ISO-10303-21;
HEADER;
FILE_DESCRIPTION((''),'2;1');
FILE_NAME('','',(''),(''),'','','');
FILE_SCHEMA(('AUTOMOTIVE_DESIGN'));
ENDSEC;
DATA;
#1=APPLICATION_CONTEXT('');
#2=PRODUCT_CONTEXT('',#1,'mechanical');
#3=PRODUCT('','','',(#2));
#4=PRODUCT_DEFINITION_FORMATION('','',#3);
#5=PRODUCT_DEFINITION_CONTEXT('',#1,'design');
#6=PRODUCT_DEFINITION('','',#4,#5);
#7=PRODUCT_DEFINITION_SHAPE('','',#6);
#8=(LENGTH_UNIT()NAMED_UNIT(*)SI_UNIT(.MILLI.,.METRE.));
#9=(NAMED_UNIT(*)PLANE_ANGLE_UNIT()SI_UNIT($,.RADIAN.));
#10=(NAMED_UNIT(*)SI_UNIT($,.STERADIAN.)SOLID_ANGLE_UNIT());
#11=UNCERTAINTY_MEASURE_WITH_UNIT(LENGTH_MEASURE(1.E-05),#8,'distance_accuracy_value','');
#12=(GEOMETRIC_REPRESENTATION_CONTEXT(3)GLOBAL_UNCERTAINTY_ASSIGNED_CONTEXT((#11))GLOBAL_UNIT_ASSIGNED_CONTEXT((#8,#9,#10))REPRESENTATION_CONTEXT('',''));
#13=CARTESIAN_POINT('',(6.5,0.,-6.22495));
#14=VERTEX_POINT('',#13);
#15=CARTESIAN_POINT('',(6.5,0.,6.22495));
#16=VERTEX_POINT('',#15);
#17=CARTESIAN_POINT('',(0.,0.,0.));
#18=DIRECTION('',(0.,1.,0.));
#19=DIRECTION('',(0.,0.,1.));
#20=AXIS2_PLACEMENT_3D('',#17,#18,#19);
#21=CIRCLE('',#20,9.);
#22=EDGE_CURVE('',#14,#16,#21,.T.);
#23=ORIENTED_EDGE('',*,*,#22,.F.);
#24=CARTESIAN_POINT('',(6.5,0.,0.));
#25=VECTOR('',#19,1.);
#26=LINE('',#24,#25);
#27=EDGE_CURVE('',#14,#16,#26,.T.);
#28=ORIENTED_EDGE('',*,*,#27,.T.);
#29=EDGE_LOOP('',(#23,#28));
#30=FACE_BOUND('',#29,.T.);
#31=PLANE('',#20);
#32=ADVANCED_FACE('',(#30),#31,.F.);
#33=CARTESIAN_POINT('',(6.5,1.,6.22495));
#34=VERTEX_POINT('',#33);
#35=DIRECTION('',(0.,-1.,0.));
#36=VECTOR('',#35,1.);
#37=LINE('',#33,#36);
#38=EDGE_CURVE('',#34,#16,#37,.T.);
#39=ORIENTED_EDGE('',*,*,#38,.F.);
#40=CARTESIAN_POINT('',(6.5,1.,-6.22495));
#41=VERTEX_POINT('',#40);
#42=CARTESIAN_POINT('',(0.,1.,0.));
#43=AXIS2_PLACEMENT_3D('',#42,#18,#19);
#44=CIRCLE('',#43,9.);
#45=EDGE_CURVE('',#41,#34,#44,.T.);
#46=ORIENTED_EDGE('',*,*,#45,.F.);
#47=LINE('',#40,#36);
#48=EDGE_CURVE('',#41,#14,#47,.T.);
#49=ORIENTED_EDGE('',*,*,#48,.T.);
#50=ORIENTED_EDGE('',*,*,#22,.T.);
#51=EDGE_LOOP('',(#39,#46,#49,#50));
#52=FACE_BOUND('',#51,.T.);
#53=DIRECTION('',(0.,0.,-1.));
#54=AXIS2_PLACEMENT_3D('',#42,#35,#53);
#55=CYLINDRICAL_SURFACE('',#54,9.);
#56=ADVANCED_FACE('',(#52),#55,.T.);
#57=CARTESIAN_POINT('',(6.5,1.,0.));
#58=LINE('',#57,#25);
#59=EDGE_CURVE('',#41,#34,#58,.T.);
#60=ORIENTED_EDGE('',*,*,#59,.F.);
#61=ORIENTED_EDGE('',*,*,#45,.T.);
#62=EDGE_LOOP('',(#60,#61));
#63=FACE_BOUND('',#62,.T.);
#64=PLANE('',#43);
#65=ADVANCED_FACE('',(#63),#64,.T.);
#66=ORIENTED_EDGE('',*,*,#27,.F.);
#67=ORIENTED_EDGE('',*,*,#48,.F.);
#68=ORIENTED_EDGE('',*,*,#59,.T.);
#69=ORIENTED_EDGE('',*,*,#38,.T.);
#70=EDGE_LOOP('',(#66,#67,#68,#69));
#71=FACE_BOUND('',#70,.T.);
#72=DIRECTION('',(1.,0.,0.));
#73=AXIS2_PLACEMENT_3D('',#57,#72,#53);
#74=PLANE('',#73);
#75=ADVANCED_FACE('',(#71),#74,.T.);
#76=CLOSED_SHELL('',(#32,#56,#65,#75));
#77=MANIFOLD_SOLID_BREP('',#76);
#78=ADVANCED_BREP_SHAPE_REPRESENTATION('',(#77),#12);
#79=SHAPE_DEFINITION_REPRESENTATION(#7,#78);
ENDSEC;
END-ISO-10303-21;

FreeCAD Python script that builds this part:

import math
import FreeCAD as App
import Part
import Sketcher

V = App.Vector

doc = App.newDocument("Part")
body = doc.addObject("PartDesign::Body", "Body")

# Sketch on XZ plane
sketch1 = body.newObject("Sketcher::SketchObject", "Sketch")
sketch1.AttachmentSupport = (doc.getObject("XZ_Plane"), [""])
sketch1.MapMode = "FlatFace"
sketch1.addGeometry([
    Part.LineSegment(V(6, 6, 0), V(6, -6, 0)),
    Part.ArcOfCircle(Part.Circle(V(0, 0, 0), V(0, 0, 1), 9), math.radians(44), math.radians(316)),
], False)
sketch1.addConstraint([
    Sketcher.Constraint("Coincident", 0, 1, 1, 1),
    Sketcher.Constraint("Coincident", 1, 2, 0, 2),
    Sketcher.Constraint("Vertical", 0),
    Sketcher.Constraint("Coincident", 1, 3, -1, 1),
    Sketcher.Constraint("Radius", 1, 9.0),
    Sketcher.Constraint("DistanceX", -1, 1, 0, 1, 6.5),
])
pad1 = body.newObject("PartDesign::Pad", "Pad")
pad1.Profile = sketch1
pad1.Length = 1
pad1.Reversed = True

doc.recompute()
